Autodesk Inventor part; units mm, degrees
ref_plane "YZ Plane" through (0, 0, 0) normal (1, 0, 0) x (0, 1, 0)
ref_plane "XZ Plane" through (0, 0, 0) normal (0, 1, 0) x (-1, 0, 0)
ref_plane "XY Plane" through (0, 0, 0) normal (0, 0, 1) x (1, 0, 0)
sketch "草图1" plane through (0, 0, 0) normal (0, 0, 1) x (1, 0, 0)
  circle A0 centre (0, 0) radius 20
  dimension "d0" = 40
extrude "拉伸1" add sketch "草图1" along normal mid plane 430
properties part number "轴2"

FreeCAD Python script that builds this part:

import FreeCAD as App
import Part
import Sketcher
Q = App.Units.Quantity

doc = App.newDocument("Part")
body = doc.addObject("PartDesign::Body", "Body")

# Sketch on XY plane
sketch1 = doc.addObject("Sketcher::SketchObject", "Sketch")
body.addObject(sketch1)
sketch1.AttachmentSupport = (doc.XY_Plane, [""])
sketch1.MapMode = "FlatFace"
sketch1.addGeometry(Part.Circle(App.Vector(0, 0, 0), App.Vector(0, 0, 1), 20), False)
sketch1.addConstraint(Sketcher.Constraint("Coincident", 0, 3, -1, 1))
sketch1.addConstraint(Sketcher.Constraint("Diameter", 0, Q("40 mm")))
pad1 = doc.addObject("PartDesign::Pad", "Pad")
body.addObject(pad1)
pad1.Profile = sketch1
pad1.Length = 430
pad1.Midplane = True

doc.recompute()
